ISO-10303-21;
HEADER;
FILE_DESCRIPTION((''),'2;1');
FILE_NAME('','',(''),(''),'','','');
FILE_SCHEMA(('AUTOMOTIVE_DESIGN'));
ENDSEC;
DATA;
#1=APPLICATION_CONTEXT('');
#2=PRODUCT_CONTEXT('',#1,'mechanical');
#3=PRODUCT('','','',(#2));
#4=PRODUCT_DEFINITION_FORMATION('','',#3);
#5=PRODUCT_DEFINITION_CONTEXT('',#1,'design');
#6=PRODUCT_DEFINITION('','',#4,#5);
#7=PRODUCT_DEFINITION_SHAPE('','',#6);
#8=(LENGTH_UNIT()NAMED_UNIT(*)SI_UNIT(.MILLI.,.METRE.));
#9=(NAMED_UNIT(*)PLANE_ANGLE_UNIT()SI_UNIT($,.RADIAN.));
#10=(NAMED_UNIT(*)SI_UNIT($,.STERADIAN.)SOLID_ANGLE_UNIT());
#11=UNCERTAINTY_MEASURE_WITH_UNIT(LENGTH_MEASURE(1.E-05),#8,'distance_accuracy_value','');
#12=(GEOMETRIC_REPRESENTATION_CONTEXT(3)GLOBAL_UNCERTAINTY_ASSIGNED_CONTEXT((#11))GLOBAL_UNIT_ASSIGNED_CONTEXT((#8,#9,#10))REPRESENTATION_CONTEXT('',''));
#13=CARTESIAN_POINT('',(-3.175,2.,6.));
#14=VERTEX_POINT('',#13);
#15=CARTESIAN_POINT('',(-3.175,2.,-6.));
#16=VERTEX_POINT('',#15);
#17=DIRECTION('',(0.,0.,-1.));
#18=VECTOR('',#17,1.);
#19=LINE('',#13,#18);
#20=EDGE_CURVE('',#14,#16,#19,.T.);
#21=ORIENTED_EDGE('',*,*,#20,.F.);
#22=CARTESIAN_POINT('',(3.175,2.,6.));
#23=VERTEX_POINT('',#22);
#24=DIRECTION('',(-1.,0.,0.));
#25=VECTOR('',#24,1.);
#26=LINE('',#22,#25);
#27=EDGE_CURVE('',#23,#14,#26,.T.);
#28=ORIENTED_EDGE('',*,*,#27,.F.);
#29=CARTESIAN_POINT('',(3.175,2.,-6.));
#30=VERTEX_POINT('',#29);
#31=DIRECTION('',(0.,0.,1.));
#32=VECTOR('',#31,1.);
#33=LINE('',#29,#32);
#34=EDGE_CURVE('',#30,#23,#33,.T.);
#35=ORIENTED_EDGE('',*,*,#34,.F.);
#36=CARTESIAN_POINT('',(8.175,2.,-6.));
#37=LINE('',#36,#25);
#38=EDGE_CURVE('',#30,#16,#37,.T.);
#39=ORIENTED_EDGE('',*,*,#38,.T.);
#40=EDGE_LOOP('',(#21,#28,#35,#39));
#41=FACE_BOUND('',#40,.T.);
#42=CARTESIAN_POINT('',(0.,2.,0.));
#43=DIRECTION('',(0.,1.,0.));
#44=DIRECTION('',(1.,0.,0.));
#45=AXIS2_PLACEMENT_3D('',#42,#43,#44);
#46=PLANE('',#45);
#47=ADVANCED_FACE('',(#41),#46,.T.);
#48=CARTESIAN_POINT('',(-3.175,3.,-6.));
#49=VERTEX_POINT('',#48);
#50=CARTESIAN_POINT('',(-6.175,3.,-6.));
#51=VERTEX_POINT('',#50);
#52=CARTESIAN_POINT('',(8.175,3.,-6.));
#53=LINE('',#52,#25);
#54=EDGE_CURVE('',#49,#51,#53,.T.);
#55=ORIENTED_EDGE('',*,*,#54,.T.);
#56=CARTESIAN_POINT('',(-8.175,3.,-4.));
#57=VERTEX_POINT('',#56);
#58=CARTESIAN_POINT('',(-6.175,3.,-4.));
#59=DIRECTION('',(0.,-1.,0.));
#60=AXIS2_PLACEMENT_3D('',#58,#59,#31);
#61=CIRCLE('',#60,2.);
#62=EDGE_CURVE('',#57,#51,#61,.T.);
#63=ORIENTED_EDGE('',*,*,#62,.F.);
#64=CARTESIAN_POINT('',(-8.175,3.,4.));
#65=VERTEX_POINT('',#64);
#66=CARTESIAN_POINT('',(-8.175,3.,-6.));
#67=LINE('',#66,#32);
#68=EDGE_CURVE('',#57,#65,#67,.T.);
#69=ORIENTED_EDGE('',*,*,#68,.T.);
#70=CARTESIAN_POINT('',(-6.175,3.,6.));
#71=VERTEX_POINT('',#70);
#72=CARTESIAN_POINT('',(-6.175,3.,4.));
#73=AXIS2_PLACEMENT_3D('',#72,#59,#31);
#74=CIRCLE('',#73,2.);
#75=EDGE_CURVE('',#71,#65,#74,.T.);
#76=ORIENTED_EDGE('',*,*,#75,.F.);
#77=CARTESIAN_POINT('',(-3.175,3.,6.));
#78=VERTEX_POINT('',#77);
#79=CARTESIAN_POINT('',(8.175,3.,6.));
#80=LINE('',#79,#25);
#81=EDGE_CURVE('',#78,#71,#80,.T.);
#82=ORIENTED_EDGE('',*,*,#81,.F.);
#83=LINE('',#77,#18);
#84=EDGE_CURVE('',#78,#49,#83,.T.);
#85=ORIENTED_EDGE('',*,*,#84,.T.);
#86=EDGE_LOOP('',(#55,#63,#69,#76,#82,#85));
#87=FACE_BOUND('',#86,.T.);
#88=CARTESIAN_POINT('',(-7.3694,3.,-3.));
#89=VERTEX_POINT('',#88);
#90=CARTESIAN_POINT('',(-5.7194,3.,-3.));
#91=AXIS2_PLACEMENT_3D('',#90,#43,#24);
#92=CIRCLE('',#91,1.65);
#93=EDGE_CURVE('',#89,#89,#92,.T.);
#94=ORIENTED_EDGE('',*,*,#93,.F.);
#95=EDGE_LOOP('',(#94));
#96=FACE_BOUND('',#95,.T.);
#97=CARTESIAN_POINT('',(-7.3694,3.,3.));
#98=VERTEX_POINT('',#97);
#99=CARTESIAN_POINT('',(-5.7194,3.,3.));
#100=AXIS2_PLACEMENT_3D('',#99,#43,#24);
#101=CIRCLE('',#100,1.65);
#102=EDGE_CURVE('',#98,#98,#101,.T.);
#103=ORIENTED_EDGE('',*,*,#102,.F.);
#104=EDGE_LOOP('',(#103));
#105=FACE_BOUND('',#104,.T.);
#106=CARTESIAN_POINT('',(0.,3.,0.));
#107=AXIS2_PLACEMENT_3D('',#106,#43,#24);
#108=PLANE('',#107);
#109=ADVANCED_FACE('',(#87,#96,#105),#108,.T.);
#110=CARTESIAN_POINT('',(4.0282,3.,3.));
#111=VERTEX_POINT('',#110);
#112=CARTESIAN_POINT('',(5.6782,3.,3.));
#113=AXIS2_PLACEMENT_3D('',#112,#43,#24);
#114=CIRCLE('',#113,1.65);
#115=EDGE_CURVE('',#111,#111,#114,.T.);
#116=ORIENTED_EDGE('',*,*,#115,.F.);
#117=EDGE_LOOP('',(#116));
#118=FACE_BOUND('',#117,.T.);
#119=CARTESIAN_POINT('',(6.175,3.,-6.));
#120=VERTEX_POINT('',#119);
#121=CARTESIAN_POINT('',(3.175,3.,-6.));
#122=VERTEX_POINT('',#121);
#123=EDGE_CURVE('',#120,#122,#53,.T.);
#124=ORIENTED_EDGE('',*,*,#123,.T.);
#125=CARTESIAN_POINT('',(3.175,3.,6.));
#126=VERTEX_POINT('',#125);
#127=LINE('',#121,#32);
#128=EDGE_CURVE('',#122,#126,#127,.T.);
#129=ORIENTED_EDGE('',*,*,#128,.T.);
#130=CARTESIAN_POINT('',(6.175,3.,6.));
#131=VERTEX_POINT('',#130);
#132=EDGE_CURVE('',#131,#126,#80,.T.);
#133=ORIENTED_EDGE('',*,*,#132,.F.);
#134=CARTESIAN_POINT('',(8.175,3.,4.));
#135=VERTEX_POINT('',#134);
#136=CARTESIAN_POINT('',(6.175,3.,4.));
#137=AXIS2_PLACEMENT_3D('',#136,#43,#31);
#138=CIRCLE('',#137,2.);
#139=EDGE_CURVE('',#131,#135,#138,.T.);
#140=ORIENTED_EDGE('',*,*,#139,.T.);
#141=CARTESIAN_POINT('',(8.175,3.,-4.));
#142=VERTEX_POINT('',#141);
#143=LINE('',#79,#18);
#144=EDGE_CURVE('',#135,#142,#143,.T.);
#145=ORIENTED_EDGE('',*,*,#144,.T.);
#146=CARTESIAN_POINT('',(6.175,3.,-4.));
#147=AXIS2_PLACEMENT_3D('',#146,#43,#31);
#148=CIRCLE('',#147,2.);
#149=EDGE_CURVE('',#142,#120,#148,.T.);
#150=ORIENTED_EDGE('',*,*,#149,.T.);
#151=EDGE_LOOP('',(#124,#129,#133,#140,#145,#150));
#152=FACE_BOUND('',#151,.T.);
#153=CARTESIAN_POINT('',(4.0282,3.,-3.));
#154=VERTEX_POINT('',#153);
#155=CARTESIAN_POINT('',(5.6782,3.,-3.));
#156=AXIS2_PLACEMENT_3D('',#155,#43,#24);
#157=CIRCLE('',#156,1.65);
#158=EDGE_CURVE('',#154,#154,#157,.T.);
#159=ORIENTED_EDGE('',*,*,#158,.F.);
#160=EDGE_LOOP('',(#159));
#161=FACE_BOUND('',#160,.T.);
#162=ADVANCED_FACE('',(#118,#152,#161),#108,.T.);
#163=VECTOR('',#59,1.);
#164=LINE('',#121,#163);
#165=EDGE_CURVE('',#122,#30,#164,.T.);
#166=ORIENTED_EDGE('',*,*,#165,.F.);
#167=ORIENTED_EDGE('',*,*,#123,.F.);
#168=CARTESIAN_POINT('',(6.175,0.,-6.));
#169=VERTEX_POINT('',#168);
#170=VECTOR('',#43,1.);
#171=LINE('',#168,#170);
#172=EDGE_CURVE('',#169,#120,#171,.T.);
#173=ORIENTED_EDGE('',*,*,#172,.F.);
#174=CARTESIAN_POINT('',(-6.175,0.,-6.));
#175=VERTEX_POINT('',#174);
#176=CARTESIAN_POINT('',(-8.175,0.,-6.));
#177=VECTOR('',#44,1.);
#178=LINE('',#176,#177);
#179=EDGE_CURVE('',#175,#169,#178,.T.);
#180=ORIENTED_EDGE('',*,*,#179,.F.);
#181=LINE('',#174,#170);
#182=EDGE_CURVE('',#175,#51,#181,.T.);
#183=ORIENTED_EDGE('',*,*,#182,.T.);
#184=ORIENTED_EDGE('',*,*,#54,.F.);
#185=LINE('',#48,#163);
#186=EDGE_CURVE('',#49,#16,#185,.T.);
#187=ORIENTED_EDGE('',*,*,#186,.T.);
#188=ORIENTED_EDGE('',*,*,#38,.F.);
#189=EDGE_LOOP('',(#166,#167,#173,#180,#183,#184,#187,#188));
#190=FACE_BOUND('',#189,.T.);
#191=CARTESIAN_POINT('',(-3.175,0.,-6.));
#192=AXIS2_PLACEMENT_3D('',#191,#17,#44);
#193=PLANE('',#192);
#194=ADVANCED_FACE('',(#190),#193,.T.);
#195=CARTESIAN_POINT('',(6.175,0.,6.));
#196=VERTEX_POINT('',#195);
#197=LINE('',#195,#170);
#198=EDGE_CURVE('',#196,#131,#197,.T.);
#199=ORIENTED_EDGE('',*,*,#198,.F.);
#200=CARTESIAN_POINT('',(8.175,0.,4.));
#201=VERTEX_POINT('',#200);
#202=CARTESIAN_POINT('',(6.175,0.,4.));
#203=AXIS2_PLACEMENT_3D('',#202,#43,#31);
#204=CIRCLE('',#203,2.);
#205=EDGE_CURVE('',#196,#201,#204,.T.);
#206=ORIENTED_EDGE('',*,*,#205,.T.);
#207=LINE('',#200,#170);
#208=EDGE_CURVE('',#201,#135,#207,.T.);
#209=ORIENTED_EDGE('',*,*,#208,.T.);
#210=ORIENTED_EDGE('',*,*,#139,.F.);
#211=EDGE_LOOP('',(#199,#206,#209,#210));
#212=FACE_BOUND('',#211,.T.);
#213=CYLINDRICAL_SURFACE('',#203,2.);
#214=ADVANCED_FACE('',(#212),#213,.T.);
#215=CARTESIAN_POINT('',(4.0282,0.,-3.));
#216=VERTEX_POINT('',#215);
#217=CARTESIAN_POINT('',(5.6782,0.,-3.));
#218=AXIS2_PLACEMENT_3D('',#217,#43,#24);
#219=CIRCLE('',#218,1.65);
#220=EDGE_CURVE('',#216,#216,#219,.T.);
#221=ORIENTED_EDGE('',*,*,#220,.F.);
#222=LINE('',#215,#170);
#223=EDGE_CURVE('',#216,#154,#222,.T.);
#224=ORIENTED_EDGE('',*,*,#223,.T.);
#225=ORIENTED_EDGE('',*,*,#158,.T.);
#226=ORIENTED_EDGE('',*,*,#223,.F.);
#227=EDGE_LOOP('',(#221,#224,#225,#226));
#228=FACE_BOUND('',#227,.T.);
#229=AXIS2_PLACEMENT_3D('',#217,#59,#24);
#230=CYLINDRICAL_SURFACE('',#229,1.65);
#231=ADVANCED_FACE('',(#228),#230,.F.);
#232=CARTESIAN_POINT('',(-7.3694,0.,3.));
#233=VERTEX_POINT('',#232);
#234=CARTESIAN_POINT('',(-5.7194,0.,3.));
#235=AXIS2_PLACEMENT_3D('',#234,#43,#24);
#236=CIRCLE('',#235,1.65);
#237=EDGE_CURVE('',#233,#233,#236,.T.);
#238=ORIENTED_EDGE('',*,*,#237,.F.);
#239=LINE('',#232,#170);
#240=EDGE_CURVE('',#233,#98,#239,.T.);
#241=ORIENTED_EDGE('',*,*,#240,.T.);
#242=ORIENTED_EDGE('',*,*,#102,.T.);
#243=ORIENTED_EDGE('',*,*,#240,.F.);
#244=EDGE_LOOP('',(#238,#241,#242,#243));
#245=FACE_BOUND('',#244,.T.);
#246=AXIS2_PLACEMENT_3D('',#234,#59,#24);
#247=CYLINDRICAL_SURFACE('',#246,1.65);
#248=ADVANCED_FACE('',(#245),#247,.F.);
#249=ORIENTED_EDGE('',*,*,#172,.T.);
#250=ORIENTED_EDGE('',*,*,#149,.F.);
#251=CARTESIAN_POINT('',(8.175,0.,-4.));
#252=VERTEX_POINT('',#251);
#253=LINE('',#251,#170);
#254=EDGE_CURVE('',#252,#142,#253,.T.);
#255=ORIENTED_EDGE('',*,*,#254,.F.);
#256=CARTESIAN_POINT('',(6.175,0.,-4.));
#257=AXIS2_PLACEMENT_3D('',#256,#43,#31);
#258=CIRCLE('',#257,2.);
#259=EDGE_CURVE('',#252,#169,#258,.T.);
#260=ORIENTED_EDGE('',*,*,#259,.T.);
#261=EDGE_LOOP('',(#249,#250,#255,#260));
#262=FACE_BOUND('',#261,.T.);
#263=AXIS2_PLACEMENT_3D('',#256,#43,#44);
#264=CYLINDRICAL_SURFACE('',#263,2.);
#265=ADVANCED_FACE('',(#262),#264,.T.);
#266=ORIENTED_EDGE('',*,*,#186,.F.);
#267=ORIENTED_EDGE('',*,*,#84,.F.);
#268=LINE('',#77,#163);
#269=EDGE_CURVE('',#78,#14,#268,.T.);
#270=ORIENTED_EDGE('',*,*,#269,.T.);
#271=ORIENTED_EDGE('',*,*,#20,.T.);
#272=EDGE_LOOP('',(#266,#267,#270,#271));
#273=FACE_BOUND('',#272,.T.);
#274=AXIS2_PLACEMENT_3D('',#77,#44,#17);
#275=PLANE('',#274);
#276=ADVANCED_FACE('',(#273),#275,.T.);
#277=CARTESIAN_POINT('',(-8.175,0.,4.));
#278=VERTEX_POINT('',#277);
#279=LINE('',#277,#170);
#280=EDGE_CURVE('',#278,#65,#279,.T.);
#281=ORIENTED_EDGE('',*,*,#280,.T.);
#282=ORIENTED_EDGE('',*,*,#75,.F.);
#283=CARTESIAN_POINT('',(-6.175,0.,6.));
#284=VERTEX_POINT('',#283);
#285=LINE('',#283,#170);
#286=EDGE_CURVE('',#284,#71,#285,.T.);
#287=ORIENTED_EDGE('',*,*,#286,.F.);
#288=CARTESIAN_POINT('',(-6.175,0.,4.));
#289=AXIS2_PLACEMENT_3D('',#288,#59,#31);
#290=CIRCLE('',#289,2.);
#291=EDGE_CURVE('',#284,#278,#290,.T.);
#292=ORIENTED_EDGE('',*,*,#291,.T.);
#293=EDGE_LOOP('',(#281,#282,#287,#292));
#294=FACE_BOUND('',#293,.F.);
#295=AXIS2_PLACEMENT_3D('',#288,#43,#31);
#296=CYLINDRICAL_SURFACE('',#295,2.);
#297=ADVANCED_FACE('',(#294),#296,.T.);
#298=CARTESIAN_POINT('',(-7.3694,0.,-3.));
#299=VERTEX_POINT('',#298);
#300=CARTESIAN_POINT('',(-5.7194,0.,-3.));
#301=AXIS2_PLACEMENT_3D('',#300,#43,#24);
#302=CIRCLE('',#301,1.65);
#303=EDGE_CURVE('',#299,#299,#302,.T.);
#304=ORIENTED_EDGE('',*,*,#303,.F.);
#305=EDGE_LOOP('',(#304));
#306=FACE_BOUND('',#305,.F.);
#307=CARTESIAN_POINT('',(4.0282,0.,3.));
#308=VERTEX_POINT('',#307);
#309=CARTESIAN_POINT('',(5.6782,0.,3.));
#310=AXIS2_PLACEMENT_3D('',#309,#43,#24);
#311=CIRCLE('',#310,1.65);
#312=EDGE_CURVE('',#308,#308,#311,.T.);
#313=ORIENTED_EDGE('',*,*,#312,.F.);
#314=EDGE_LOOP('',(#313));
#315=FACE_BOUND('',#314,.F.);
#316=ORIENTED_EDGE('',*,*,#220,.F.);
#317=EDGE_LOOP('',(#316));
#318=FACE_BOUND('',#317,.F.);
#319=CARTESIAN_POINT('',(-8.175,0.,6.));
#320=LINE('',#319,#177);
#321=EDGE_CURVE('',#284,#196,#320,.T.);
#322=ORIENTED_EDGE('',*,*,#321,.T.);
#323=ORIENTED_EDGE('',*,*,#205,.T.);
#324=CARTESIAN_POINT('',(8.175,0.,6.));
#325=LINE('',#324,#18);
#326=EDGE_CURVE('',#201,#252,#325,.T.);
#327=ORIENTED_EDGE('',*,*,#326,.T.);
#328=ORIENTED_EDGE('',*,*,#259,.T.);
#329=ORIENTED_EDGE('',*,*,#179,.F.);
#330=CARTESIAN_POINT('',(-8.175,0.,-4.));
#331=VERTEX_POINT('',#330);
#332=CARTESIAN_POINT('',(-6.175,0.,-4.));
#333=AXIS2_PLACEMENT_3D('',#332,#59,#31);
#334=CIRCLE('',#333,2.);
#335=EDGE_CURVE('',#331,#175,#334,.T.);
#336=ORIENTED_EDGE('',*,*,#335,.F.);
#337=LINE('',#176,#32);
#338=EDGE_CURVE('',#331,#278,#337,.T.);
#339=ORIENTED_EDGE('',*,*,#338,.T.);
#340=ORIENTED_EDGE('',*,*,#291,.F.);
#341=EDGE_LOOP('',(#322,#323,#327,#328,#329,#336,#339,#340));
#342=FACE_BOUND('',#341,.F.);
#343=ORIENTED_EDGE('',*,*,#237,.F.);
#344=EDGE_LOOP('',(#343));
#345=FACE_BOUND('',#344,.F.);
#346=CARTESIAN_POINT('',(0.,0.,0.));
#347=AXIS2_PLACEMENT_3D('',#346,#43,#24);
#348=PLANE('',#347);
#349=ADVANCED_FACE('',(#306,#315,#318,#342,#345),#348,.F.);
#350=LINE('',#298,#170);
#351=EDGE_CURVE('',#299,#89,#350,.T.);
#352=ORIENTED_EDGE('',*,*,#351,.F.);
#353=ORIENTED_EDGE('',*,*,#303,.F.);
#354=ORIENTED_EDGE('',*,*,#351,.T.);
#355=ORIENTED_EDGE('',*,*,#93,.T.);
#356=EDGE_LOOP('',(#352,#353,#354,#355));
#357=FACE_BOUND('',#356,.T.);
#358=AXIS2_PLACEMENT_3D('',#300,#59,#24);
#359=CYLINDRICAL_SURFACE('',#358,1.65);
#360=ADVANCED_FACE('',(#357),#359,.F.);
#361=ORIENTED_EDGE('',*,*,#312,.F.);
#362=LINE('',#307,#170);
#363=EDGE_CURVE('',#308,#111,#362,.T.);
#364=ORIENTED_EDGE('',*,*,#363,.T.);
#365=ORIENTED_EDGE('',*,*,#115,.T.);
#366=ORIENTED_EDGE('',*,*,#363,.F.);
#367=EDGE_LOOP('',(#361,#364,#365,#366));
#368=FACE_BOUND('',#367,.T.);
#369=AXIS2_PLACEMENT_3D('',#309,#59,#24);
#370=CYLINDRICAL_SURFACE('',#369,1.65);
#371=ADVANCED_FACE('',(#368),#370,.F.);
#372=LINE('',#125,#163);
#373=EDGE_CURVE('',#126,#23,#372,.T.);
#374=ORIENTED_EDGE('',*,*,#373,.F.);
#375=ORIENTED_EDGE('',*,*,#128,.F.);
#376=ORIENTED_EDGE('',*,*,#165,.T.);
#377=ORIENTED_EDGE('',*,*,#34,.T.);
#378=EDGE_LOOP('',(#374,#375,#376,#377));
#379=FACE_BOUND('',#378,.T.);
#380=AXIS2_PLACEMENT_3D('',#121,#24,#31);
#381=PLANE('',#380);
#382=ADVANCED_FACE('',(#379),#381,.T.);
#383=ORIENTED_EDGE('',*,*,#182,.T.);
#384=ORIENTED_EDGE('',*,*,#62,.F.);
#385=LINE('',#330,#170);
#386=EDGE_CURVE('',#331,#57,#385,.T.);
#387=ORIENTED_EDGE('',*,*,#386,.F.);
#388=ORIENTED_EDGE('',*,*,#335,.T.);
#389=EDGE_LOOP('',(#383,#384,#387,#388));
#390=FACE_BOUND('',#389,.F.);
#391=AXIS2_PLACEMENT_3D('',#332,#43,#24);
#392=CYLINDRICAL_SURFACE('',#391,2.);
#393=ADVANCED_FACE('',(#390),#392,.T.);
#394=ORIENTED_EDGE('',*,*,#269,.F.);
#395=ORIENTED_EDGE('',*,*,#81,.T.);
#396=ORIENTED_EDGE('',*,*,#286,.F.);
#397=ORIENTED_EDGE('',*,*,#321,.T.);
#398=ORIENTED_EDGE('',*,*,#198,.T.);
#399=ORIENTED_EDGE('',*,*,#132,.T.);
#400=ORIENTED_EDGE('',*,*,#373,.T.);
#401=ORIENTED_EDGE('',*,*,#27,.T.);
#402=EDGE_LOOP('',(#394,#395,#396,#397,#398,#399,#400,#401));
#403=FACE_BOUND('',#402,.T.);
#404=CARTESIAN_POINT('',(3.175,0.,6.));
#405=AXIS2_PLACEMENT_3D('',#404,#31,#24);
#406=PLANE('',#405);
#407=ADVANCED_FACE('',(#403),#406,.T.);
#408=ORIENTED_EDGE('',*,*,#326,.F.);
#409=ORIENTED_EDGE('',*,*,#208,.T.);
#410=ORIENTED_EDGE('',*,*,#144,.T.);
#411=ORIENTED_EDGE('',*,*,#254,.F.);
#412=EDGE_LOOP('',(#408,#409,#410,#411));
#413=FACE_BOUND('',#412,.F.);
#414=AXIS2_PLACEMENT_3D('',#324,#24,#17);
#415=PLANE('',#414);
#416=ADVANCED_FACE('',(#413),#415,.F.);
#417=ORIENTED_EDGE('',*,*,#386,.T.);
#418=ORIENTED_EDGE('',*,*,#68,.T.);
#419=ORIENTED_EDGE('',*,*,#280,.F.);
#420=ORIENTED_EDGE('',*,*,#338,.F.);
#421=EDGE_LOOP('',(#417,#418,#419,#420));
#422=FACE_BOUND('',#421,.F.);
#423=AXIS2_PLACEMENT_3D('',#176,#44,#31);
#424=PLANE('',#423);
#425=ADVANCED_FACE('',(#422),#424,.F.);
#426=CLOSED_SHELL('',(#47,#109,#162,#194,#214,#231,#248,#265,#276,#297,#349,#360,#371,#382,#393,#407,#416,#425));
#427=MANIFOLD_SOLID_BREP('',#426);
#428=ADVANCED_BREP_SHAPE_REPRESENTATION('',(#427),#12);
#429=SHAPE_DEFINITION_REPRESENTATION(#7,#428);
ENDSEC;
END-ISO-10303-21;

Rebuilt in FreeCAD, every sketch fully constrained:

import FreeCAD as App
import Part
import Sketcher
from FreeCAD import Vector


def edges_at(feature, points):
    """Names of the edges that pass closest to the given points."""
    edges = feature.Shape.Edges
    near = lambda p: min(range(len(edges)), key=lambda i: edges[i].distToShape(Part.Vertex(*p))[0])
    return sorted({f"Edge{near(p) + 1}" for p in points})


def add_polygon(sketch, points):
    """Adds a closed chain of lines whose ends are joined by coincident constraints."""
    first, n = sketch.GeometryCount, len(points)
    for a, b in zip(points, points[1:] + points[:1]):
        sketch.addGeometry(Part.LineSegment(App.Vector(*a, 0), App.Vector(*b, 0)), False)
    for i in range(n):
        sketch.addConstraint(Sketcher.Constraint("Coincident", first + i, 2, first + (i + 1) % n, 1))

doc = App.newDocument("Part")
body = doc.addObject("PartDesign::Body", "Body")

# Sketch on XZ plane
sketch1 = doc.addObject("Sketcher::SketchObject", "Sketch")
body.addObject(sketch1)
sketch1.AttachmentSupport = (doc.XZ_Plane, [""])
sketch1.MapMode = "FlatFace"
add_polygon(sketch1, [(8.2, 6), (8.2, -6), (-8.2, -6), (-8.2, 6)])  # lines 0-3
sketch1.addGeometry(Part.Circle(Vector(-5.7, 3, 0), Vector(0, 0, 1), 1.6), False)  # 4
sketch1.addGeometry(Part.Circle(Vector(-5.7, -3, 0), Vector(0, 0, 1), 1.6), False)  # 5
sketch1.addGeometry(Part.Circle(Vector(5.7, 3, 0), Vector(0, 0, 1), 1.6), False)  # 6
sketch1.addGeometry(Part.Circle(Vector(5.7, -3, 0), Vector(0, 0, 1), 1.6), False)  # 7
sketch1.addConstraint(Sketcher.Constraint("Vertical", 0))
sketch1.addConstraint(Sketcher.Constraint("Horizontal", 1))
sketch1.addConstraint(Sketcher.Constraint("Vertical", 2))
sketch1.addConstraint(Sketcher.Constraint("Horizontal", 3))
sketch1.addConstraint(Sketcher.Constraint("Equal", 4, 5))
sketch1.addConstraint(Sketcher.Constraint("Equal", 5, 6))
sketch1.addConstraint(Sketcher.Constraint("Equal", 6, 7))
sketch1.addConstraint(Sketcher.Constraint("Symmetric", 0, 2, 2, 2, -1, 1))
sketch1.addConstraint(Sketcher.Constraint("Symmetric", 4, 3, 5, 3, -1))
sketch1.addConstraint(Sketcher.Constraint("Symmetric", 6, 3, 7, 3, -1))
sketch1.addConstraint(Sketcher.Constraint("Horizontal", 4, 3, 6, 3))
sketch1.addConstraint(Sketcher.Constraint("Diameter", 4, 3.3))
sketch1.addConstraint(Sketcher.Constraint("DistanceY", 0, 2, 0, 1, 12.0))
sketch1.addConstraint(Sketcher.Constraint("DistanceY", -1, 1, 4, 3, 3.0))
sketch1.addConstraint(Sketcher.Constraint("DistanceX", 1, 2, 1, 1, 16.35))
sketch1.addConstraint(Sketcher.Constraint("DistanceX", 4, 3, -1, 1, 5.7194))
sketch1.addConstraint(Sketcher.Constraint("DistanceX", -1, 1, 6, 3, 5.6782))
pad1 = doc.addObject("PartDesign::Pad", "Pad")
body.addObject(pad1)
pad1.Profile = sketch1
pad1.Length = 3
pad1.Reversed = True

# Sketch on XZ plane
sketch2 = doc.addObject("Sketcher::SketchObject", "Sketch001")
body.addObject(sketch2)
sketch2.AttachmentSupport = (doc.XZ_Plane, [""])
sketch2.MapMode = "FlatFace"
sketch2.AttachmentOffset = App.Placement(Vector(0, 0, -3), App.Rotation())
add_polygon(sketch2, [(3, 6), (3, -6), (-3, -6), (-3, 6)])  # lines 0-3
sketch2.addConstraint(Sketcher.Constraint("Vertical", 0))
sketch2.addConstraint(Sketcher.Constraint("Horizontal", 1))
sketch2.addConstraint(Sketcher.Constraint("Vertical", 2))
sketch2.addConstraint(Sketcher.Constraint("Horizontal", 3))
sketch2.addConstraint(Sketcher.Constraint("Symmetric", 0, 2, 2, 2, -1, 1))
sketch2.addConstraint(Sketcher.Constraint("DistanceX", 1, 2, 1, 1, 6.35))
sketch2.addConstraint(Sketcher.Constraint("DistanceY", 0, 2, 0, 1, 12.0))
pocket1 = doc.addObject("PartDesign::Pocket", "Pocket")
body.addObject(pocket1)
pocket1.Profile = sketch2
pocket1.Length = 1
pocket1.Reversed = True
doc.recompute()

fillet = doc.addObject("PartDesign::Fillet", "Fillet")
body.addObject(fillet)
fillet.Base = (pocket1, edges_at(pocket1, [
    (-8.175, 1.5, 6),
    (8.175, 1.5, 6),
    (8.175, 1.5, -6),
    (-8.175, 1.5, -6),
]))
fillet.Radius = 2

doc.recompute()
